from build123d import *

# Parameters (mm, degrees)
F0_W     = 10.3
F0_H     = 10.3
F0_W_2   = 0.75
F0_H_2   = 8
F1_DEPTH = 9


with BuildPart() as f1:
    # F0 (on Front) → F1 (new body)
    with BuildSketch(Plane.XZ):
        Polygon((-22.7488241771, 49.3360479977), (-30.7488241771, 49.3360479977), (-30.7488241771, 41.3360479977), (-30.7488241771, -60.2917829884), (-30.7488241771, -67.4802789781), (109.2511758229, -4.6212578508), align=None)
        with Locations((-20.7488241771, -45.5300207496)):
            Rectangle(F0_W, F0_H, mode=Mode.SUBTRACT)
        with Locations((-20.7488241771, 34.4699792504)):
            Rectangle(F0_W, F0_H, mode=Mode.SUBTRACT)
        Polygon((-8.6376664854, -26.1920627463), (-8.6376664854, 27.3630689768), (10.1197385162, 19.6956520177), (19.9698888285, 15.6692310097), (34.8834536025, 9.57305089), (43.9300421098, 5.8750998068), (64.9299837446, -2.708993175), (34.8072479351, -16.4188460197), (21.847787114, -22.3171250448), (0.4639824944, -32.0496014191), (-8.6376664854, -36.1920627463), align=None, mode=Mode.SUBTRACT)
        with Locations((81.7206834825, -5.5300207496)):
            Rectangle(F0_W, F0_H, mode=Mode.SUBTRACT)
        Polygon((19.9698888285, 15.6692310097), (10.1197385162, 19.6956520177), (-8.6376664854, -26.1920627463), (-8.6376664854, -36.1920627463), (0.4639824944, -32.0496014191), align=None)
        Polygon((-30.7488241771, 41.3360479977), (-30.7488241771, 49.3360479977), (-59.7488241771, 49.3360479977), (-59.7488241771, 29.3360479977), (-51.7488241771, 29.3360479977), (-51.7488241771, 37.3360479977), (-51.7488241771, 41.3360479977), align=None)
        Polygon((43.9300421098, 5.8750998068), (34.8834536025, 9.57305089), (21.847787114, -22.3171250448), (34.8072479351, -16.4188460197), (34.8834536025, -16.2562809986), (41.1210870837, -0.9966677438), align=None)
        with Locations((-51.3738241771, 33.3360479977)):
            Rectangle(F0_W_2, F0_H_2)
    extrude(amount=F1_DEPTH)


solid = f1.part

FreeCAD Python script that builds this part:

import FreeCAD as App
import Part
import Sketcher
Q = App.Units.Quantity

doc = App.newDocument("Part")
body = doc.addObject("PartDesign::Body", "Body")

sketch1 = doc.addObject("Sketcher::SketchObject", "Sketch")
body.addObject(sketch1)
sketch1.AttachmentSupport = (doc.XZ_Plane, [""])
sketch1.MapMode = "FlatFace"
sketch1.addGeometry(Part.LineSegment(App.Vector(-22.75, 49.34, 0), App.Vector(-59.75, 49.34, 0)), False)
sketch1.addGeometry(Part.LineSegment(App.Vector(-59.75, 49.34, 0), App.Vector(-59.75, 29.34, 0)), False)
sketch1.addGeometry(Part.LineSegment(App.Vector(-59.75, 29.34, 0), App.Vector(-51, 29.34, 0)), False)
sketch1.addGeometry(Part.LineSegment(App.Vector(-51, 29.34, 0), App.Vector(-51, 37.34, 0)), False)
sketch1.addGeometry(Part.LineSegment(App.Vector(-51, 37.34, 0), App.Vector(-51.75, 37.34, 0)), False)
sketch1.addGeometry(Part.LineSegment(App.Vector(-51.75, 37.34, 0), App.Vector(-51.75, 41.34, 0)), False)
sketch1.addGeometry(Part.LineSegment(App.Vector(-51.75, 41.34, 0), App.Vector(-30.75, 41.34, 0)), False)
sketch1.addGeometry(Part.LineSegment(App.Vector(-30.75, 41.34, 0), App.Vector(-30.75, -67.48, 0)), False)
sketch1.addGeometry(Part.LineSegment(App.Vector(-30.75, -67.48, 0), App.Vector(109.25, -4.62, 0)), False)
sketch1.addGeometry(Part.LineSegment(App.Vector(109.25, -4.62, 0), App.Vector(-22.75, 49.34, 0)), False)
sketch1.addGeometry(Part.LineSegment(App.Vector(-15.6, -50.68, 0), App.Vector(-25.9, -50.68, 0)), False)
sketch1.addGeometry(Part.LineSegment(App.Vector(-25.9, -50.68, 0), App.Vector(-25.9, -40.38, 0)), False)
sketch1.addGeometry(Part.LineSegment(App.Vector(-25.9, -40.38, 0), App.Vector(-15.6, -40.38, 0)), False)
sketch1.addGeometry(Part.LineSegment(App.Vector(-15.6, -40.38, 0), App.Vector(-15.6, -50.68, 0)), False)
sketch1.addGeometry(Part.LineSegment(App.Vector(86.87, -10.68, 0), App.Vector(76.57, -10.68, 0)), False)
sketch1.addGeometry(Part.LineSegment(App.Vector(76.57, -10.68, 0), App.Vector(76.57, -0.38, 0)), False)
sketch1.addGeometry(Part.LineSegment(App.Vector(76.57, -0.38, 0), App.Vector(86.87, -0.38, 0)), False)
sketch1.addGeometry(Part.LineSegment(App.Vector(86.87, -0.38, 0), App.Vector(86.87, -10.68, 0)), False)
sketch1.addGeometry(Part.LineSegment(App.Vector(-8.64, -26.19, 0), App.Vector(-8.64, 27.36, 0)), False)
sketch1.addGeometry(Part.LineSegment(App.Vector(-8.64, 27.36, 0), App.Vector(10.12, 19.7, 0)), False)
sketch1.addGeometry(Part.LineSegment(App.Vector(10.12, 19.7, 0), App.Vector(-8.64, -26.19, 0)), False)
sketch1.addGeometry(Part.LineSegment(App.Vector(19.97, 15.67, 0), App.Vector(34.88, 9.57, 0)), False)
sketch1.addGeometry(Part.LineSegment(App.Vector(34.88, 9.57, 0), App.Vector(21.85, -22.32, 0)), False)
sketch1.addGeometry(Part.LineSegment(App.Vector(21.85, -22.32, 0), App.Vector(0.46, -32.05, 0)), False)
sketch1.addGeometry(Part.LineSegment(App.Vector(0.46, -32.05, 0), App.Vector(19.97, 15.67, 0)), False)
sketch1.addGeometry(Part.LineSegment(App.Vector(43.93, 5.88, 0), App.Vector(64.93, -2.71, 0)), False)
sketch1.addGeometry(Part.LineSegment(App.Vector(64.93, -2.71, 0), App.Vector(34.81, -16.42, 0)), False)
sketch1.addGeometry(Part.LineSegment(App.Vector(34.81, -16.42, 0), App.Vector(34.88, -16.26, 0)), False)
sketch1.addGeometry(Part.LineSegment(App.Vector(34.88, -16.26, 0), App.Vector(41.12, -1, 0)), False)
sketch1.addGeometry(Part.LineSegment(App.Vector(41.12, -1, 0), App.Vector(43.93, 5.88, 0)), False)
sketch1.addGeometry(Part.LineSegment(App.Vector(-15.6, 29.32, 0), App.Vector(-25.9, 29.32, 0)), False)
sketch1.addGeometry(Part.LineSegment(App.Vector(-25.9, 29.32, 0), App.Vector(-25.9, 39.62, 0)), False)
sketch1.addGeometry(Part.LineSegment(App.Vector(-25.9, 39.62, 0), App.Vector(-15.6, 39.62, 0)), False)
sketch1.addGeometry(Part.LineSegment(App.Vector(-15.6, 39.62, 0), App.Vector(-15.6, 29.32, 0)), False)
sketch1.addConstraint(Sketcher.Constraint("Coincident", 0, 2, 1, 1))
sketch1.addConstraint(Sketcher.Constraint("Coincident", 1, 2, 2, 1))
sketch1.addConstraint(Sketcher.Constraint("Coincident", 2, 2, 3, 1))
sketch1.addConstraint(Sketcher.Constraint("Coincident", 3, 2, 4, 1))
sketch1.addConstraint(Sketcher.Constraint("Coincident", 4, 2, 5, 1))
sketch1.addConstraint(Sketcher.Constraint("Coincident", 5, 2, 6, 1))
sketch1.addConstraint(Sketcher.Constraint("Coincident", 6, 2, 7, 1))
sketch1.addConstraint(Sketcher.Constraint("Coincident", 7, 2, 8, 1))
sketch1.addConstraint(Sketcher.Constraint("Coincident", 8, 2, 9, 1))
sketch1.addConstraint(Sketcher.Constraint("Coincident", 9, 2, 0, 1))
sketch1.addConstraint(Sketcher.Constraint("Coincident", 10, 2, 11, 1))
sketch1.addConstraint(Sketcher.Constraint("Coincident", 11, 2, 12, 1))
sketch1.addConstraint(Sketcher.Constraint("Coincident", 12, 2, 13, 1))
sketch1.addConstraint(Sketcher.Constraint("Coincident", 13, 2, 10, 1))
sketch1.addConstraint(Sketcher.Constraint("Coincident", 14, 2, 15, 1))
sketch1.addConstraint(Sketcher.Constraint("Coincident", 15, 2, 16, 1))
sketch1.addConstraint(Sketcher.Constraint("Coincident", 16, 2, 17, 1))
sketch1.addConstraint(Sketcher.Constraint("Coincident", 17, 2, 14, 1))
sketch1.addConstraint(Sketcher.Constraint("Coincident", 18, 2, 19, 1))
sketch1.addConstraint(Sketcher.Constraint("Coincident", 19, 2, 20, 1))
sketch1.addConstraint(Sketcher.Constraint("Coincident", 20, 2, 18, 1))
sketch1.addConstraint(Sketcher.Constraint("Coincident", 21, 2, 22, 1))
sketch1.addConstraint(Sketcher.Constraint("Coincident", 22, 2, 23, 1))
sketch1.addConstraint(Sketcher.Constraint("Coincident", 23, 2, 24, 1))
sketch1.addConstraint(Sketcher.Constraint("Coincident", 24, 2, 21, 1))
sketch1.addConstraint(Sketcher.Constraint("Coincident", 25, 2, 26, 1))
sketch1.addConstraint(Sketcher.Constraint("Coincident", 26, 2, 27, 1))
sketch1.addConstraint(Sketcher.Constraint("Coincident", 27, 2, 28, 1))
sketch1.addConstraint(Sketcher.Constraint("Coincident", 28, 2, 29, 1))
sketch1.addConstraint(Sketcher.Constraint("Coincident", 29, 2, 25, 1))
sketch1.addConstraint(Sketcher.Constraint("Coincident", 30, 2, 31, 1))
sketch1.addConstraint(Sketcher.Constraint("Coincident", 31, 2, 32, 1))
sketch1.addConstraint(Sketcher.Constraint("Coincident", 32, 2, 33, 1))
sketch1.addConstraint(Sketcher.Constraint("Coincident", 33, 2, 30, 1))
sketch1.addConstraint(Sketcher.Constraint("Horizontal", 0))
sketch1.addConstraint(Sketcher.Constraint("Vertical", 1))
sketch1.addConstraint(Sketcher.Constraint("Horizontal", 2))
sketch1.addConstraint(Sketcher.Constraint("Vertical", 3))
sketch1.addConstraint(Sketcher.Constraint("Horizontal", 4))
sketch1.addConstraint(Sketcher.Constraint("Vertical", 5))
sketch1.addConstraint(Sketcher.Constraint("Horizontal", 6))
sketch1.addConstraint(Sketcher.Constraint("Vertical", 7))
sketch1.addConstraint(Sketcher.Constraint("Horizontal", 10))
sketch1.addConstraint(Sketcher.Constraint("Vertical", 11))
sketch1.addConstraint(Sketcher.Constraint("Horizontal", 12))
sketch1.addConstraint(Sketcher.Constraint("Vertical", 13))
sketch1.addConstraint(Sketcher.Constraint("Horizontal", 14))
sketch1.addConstraint(Sketcher.Constraint("Vertical", 15))
sketch1.addConstraint(Sketcher.Constraint("Horizontal", 16))
sketch1.addConstraint(Sketcher.Constraint("Vertical", 17))
sketch1.addConstraint(Sketcher.Constraint("Vertical", 18))
sketch1.addConstraint(Sketcher.Constraint("Horizontal", 30))
sketch1.addConstraint(Sketcher.Constraint("Vertical", 31))
sketch1.addConstraint(Sketcher.Constraint("Horizontal", 32))
sketch1.addConstraint(Sketcher.Constraint("Vertical", 33))
sketch1.addConstraint(Sketcher.Constraint("Parallel", 9, 19))
sketch1.addConstraint(Sketcher.Constraint("Perpendicular", 19, 20))
sketch1.addConstraint(Sketcher.Constraint("Perpendicular", 20, 21))
sketch1.addConstraint(Sketcher.Constraint("Perpendicular", 21, 22))
sketch1.addConstraint(Sketcher.Constraint("Parallel", 22, 24))
sketch1.addConstraint(Sketcher.Constraint("Perpendicular", 24, 25))
sketch1.addConstraint(Sketcher.Constraint("Parallel", 23, 26))
sketch1.addConstraint(Sketcher.Constraint("Perpendicular", 25, 28))
sketch1.addConstraint(Sketcher.Constraint("Parallel", 28, 29))
sketch1.addConstraint(Sketcher.Constraint("Vertical", 21, 2, 27, 2))
sketch1.addConstraint(Sketcher.Constraint("Vertical", 11, 2, 30, 2))
sketch1.addConstraint(Sketcher.Constraint("Vertical", 13, 2, 32, 2))
sketch1.addConstraint(Sketcher.Constraint("Equal", 12, 14))
sketch1.addConstraint(Sketcher.Constraint("Equal", 32, 11))
sketch1.addConstraint(Sketcher.Constraint("Equal", 13, 15))
sketch1.addConstraint(Sketcher.Constraint("Equal", 17, 31))
sketch1.addConstraint(Sketcher.Constraint("DistanceX", 0, 2, 0, 1, Q("37 mm")))
sketch1.addConstraint(Sketcher.Constraint("DistanceX", 6, 1, 6, 2, Q("21 mm")))
sketch1.addConstraint(Sketcher.Constraint("DistanceY", 1, 2, 1, 1, Q("20 mm")))
sketch1.addConstraint(Sketcher.Constraint("DistanceY", 3, 1, 3, 2, Q("8 mm")))
sketch1.addConstraint(Sketcher.Constraint("DistanceY", 5, 1, 5, 2, Q("4 mm")))
sketch1.addConstraint(Sketcher.Constraint("DistanceX", 10, 2, 10, 1, Q("10.3 mm")))
sketch1.addConstraint(Sketcher.Constraint("DistanceX", 1, 2, 4, 2, Q("8 mm")))
sketch1.addConstraint(Sketcher.Constraint("DistanceX", 6, 2, 8, 2, Q("140 mm")))
sketch1.addConstraint(Sketcher.Constraint("DistanceY", 13, 2, 14, 2, Q("40 mm")))
sketch1.addConstraint(Sketcher.Constraint("DistanceX", 2, 1, 2, 2, Q("8.75 mm")))
sketch1.addConstraint(Sketcher.Constraint("DistanceX", 2, 2, 10, 2, Q("25.1 mm")))
sketch1.addConstraint(Sketcher.Constraint("Distance", 24, Q("51.551599 mm")))
sketch1.addConstraint(Sketcher.Constraint("DistanceY", 18, 1, 18, 2, Q("53.555132 mm")))
sketch1.addConstraint(Sketcher.Constraint("DistanceY", 23, 2, -1, 1, Q("32.049601 mm")))
sketch1.addConstraint(Sketcher.Constraint("DistanceY", -1, 1, 29, 2, Q("5.8751 mm")))
sketch1.addConstraint(Sketcher.Constraint("DistanceY", 21, 2, 19, 2, Q("10.122601 mm")))
sketch1.addConstraint(Sketcher.Constraint("DistanceX", 24, 2, 22, 2, Q("1.877898 mm")))
sketch1.addConstraint(Sketcher.Constraint("DistanceX", 25, 2, 15, 2, Q("11.6407 mm")))
sketch1.addConstraint(Sketcher.Constraint("DistanceX", 24, 2, 28, 2, Q("21.151198 mm")))
sketch1.addConstraint(Sketcher.Constraint("DistanceY", 28, 2, 24, 2, Q("16.665899 mm")))
sketch1.addConstraint(Sketcher.Constraint("Distance", 9, Q("142.602212 mm")))
sketch1.addConstraint(Sketcher.Constraint("Distance", 21, Q("16.111419 mm")))
sketch1.addConstraint(Sketcher.Constraint("Distance", 26, Q("33.09591 mm")))
sketch1.addConstraint(Sketcher.Constraint("Distance", 27, Q("0.17954 mm")))
sketch1.addConstraint(Sketcher.Constraint("DistanceY", 7, 2, 7, 1, Q("108.816327 mm")))
sketch1.addConstraint(Sketcher.Constraint("DistanceY", 7, 2, -1, 1, Q("67.480279 mm")))
sketch1.addConstraint(Sketcher.Constraint("DistanceY", 10, 2, -1, 1, Q("50.680021 mm")))
sketch1.addConstraint(Sketcher.Constraint("DistanceX", -1, 1, 19, 2, Q("10.119739 mm")))
sketch1.addConstraint(Sketcher.Constraint("DistanceX", -1, 1, 24, 2, Q("19.969889 mm")))
sketch1.addConstraint(Sketcher.Constraint("DistanceY", -1, 1, 30, 2, Q("29.319979 mm")))
sketch1.addConstraint(Sketcher.Constraint("DistanceX", 12, 2, 22, 2, Q("37.446611 mm")))
pad1 = doc.addObject("PartDesign::Pad", "Pad")
body.addObject(pad1)
pad1.Profile = sketch1
pad1.Length = 9

doc.recompute()
